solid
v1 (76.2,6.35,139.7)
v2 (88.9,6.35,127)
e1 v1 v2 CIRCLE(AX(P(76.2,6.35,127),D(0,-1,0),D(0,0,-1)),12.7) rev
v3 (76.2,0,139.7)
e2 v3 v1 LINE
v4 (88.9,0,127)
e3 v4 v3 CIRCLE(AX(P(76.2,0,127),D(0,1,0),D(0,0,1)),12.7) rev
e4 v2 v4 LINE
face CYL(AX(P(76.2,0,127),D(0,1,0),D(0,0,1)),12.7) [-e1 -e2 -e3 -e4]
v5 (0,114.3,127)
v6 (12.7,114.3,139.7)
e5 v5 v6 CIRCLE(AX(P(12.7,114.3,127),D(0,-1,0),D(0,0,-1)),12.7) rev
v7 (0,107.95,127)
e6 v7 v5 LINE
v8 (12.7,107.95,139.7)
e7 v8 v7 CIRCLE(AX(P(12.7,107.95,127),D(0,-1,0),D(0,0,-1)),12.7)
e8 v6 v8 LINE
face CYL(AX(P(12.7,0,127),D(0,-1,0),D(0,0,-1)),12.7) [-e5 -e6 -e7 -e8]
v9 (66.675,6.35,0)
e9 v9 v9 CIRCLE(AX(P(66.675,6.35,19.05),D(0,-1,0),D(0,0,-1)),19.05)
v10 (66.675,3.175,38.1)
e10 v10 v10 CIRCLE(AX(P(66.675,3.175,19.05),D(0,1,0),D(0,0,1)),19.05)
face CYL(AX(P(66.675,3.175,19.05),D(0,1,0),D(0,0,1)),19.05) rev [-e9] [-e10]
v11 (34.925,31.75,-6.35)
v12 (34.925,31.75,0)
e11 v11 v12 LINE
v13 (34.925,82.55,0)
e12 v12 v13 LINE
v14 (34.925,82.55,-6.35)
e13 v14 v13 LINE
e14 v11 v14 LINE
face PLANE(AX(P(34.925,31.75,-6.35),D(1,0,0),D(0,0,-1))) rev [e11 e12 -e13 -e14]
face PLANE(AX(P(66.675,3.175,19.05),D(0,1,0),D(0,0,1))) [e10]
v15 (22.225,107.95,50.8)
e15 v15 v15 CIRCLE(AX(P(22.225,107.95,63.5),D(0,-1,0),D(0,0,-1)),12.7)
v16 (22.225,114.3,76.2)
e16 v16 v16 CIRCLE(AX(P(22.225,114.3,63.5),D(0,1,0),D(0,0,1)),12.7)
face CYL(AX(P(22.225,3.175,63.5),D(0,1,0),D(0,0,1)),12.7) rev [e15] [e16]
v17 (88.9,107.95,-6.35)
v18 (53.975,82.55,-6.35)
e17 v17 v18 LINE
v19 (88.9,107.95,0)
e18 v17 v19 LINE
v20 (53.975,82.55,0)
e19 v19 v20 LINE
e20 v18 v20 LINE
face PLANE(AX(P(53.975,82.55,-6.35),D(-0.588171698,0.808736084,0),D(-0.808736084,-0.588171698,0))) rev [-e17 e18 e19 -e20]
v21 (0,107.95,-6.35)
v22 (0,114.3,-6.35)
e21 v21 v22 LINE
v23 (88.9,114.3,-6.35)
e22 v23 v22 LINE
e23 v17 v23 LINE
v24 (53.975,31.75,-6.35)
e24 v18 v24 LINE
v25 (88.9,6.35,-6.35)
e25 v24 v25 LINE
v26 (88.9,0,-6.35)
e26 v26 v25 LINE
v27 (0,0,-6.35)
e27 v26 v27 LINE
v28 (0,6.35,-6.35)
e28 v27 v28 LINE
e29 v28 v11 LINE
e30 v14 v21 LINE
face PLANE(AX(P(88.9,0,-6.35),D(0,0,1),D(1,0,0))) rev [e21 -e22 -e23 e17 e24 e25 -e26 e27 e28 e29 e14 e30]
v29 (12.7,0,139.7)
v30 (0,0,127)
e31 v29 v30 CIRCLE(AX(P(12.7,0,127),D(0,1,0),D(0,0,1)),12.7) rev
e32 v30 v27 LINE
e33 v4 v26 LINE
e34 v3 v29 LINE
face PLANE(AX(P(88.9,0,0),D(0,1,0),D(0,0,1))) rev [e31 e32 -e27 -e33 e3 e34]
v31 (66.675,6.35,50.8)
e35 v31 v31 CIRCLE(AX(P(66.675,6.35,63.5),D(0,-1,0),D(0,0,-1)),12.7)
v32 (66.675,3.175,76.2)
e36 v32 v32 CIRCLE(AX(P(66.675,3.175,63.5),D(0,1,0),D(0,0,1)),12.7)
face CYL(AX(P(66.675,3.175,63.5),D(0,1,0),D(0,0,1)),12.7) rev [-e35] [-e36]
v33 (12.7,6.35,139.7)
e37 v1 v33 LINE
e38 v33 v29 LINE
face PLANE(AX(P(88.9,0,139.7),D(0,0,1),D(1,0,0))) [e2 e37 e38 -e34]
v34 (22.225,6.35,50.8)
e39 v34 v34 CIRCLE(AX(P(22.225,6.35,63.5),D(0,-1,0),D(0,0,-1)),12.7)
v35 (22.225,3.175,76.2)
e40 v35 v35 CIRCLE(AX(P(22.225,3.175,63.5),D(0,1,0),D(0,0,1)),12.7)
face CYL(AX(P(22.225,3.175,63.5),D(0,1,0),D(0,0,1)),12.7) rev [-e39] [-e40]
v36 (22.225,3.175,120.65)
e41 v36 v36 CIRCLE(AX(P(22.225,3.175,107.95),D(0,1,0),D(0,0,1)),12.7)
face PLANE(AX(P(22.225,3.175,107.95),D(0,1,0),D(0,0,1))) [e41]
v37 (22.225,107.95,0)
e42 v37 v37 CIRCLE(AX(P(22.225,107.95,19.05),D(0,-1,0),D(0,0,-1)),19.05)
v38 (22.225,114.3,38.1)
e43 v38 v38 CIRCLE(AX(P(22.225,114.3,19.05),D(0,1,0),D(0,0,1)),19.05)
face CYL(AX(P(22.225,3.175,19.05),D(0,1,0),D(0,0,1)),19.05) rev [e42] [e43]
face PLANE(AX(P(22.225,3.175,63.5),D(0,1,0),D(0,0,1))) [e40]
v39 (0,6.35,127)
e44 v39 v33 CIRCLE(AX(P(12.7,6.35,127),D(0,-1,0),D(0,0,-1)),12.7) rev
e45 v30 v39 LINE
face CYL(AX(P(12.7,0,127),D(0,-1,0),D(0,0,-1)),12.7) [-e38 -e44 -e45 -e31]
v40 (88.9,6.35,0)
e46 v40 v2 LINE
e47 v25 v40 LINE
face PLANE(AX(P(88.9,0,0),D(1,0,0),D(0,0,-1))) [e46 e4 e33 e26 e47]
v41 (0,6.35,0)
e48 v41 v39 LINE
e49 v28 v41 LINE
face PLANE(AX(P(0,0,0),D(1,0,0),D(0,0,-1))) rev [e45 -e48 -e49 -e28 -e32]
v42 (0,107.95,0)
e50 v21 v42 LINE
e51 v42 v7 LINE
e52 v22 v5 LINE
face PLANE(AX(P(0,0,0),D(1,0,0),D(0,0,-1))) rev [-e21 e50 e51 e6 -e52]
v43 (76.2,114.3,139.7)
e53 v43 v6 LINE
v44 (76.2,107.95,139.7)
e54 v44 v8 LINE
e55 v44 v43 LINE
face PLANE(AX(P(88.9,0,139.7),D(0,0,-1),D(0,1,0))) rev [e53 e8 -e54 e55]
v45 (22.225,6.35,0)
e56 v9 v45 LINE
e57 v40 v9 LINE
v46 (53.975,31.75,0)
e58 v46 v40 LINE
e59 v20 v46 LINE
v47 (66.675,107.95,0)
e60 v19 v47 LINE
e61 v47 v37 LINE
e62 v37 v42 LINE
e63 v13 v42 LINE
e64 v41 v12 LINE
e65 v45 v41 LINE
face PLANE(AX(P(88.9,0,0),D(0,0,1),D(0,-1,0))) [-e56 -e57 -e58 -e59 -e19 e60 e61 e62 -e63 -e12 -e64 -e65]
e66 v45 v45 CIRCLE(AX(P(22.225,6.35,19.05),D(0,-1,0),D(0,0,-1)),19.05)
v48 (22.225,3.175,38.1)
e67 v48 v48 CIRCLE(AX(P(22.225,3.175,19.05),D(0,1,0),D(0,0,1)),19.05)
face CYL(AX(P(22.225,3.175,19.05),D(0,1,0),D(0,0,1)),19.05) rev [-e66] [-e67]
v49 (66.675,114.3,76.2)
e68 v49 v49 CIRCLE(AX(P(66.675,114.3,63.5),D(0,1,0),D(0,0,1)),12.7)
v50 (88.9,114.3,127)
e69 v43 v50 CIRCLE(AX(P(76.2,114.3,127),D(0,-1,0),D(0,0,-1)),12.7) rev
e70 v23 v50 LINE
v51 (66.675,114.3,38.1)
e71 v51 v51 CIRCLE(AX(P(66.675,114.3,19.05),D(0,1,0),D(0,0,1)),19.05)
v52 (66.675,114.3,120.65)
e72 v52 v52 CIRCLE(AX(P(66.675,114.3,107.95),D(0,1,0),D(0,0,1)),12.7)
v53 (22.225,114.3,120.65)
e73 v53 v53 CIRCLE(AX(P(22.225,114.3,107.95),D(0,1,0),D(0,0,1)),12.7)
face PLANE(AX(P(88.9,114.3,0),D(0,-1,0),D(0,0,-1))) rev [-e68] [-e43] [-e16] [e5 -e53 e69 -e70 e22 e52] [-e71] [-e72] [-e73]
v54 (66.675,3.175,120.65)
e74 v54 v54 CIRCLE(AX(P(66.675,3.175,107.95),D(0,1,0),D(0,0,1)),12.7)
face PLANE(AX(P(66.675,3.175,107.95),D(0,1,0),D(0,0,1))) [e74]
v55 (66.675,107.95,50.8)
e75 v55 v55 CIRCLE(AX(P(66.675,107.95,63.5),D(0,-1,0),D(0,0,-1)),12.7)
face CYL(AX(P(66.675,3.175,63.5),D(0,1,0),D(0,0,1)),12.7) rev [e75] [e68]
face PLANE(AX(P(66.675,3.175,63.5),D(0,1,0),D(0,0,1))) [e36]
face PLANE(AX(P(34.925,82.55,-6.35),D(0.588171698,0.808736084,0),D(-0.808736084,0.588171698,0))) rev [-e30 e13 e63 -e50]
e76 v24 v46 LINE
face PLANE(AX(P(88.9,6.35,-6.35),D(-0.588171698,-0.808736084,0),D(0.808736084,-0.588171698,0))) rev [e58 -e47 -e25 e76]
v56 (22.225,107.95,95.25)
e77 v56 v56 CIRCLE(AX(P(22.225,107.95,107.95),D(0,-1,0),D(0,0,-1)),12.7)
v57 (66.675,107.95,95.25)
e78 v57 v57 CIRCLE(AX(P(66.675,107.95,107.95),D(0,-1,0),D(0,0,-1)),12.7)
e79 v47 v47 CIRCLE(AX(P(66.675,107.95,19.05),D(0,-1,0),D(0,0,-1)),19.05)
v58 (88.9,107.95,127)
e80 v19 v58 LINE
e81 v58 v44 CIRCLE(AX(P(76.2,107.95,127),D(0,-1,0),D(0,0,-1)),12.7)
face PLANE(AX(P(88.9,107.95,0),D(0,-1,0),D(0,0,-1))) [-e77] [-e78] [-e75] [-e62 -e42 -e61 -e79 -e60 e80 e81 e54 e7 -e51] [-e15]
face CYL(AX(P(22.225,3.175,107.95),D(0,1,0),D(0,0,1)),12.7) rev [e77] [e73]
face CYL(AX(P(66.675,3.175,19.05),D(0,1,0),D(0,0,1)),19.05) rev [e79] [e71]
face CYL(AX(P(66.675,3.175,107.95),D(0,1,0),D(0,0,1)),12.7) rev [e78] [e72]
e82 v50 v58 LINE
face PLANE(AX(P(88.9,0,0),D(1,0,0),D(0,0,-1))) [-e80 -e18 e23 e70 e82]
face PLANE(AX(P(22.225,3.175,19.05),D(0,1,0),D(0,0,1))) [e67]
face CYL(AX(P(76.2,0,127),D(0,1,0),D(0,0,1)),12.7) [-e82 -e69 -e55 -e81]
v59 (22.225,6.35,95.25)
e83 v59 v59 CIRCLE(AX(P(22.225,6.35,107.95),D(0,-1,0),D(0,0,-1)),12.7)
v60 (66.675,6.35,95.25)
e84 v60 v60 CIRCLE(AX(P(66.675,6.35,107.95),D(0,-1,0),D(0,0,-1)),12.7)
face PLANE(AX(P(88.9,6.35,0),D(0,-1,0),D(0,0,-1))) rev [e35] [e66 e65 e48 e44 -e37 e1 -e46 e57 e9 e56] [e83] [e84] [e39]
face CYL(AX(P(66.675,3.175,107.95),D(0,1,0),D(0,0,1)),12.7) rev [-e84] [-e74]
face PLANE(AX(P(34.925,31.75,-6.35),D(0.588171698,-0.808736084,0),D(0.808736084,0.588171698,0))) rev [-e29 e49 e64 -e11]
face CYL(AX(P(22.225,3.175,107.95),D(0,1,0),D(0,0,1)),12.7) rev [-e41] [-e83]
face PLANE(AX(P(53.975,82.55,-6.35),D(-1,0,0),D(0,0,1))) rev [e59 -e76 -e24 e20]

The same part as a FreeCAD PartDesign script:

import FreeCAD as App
import Part
import Sketcher
from FreeCAD import Vector
Q = App.Units.Quantity


def edges_at(feature, points):
    """Names of the edges that pass closest to the given points."""
    edges = feature.Shape.Edges
    near = lambda p: min(range(len(edges)), key=lambda i: edges[i].distToShape(Part.Vertex(*p))[0])
    return sorted({f"Edge{near(p) + 1}" for p in points})

doc = App.newDocument("Part")
params = doc.addObject("Spreadsheet::Sheet", "Params")
for row, (alias, value) in enumerate([
    ("sketch1_width", "4 in"),
    ("sketch1_width2", "4.5 in"),
    ("sketch1_height", "5.5 in"),
    ("sketch1_height2", "5.75 in"),
    ("pad1_length", "3.5 in"),
    ("sketch2_diameter", "1 in"),
    ("sketch2_diameter2", "1.5 in"),
    ("pocket1_length", "4.375 in"),
    ("sketch3_height", "2 in"),
    ("sketch3_height2", "4 in"),
    ("fillet_radius", "0.5 in"),
], start=1):
    params.set(f"A{row}", alias)
    params.set(f"B{row}", "=" + value)
    params.setAlias(f"B{row}", alias)

body = doc.addObject("PartDesign::Body", "Body")

sketch1 = body.newObject("Sketcher::SketchObject", "Sketch")
sketch1.AttachmentSupport = (doc.getObject("YZ_Plane"), [""])
sketch1.MapMode = "FlatFace"
sketch1.addGeometry(Part.LineSegment(Vector(114.3, 139.7, 0), Vector(107.95, 139.7, 0)), False)
sketch1.addGeometry(Part.LineSegment(Vector(107.95, 139.7, 0), Vector(107.95, 0, 0)), False)
sketch1.addGeometry(Part.LineSegment(Vector(107.95, 0, 0), Vector(6.35, 0, 0)), False)
sketch1.addGeometry(Part.LineSegment(Vector(6.35, 0, 0), Vector(6.35, 139.7, 0)), False)
sketch1.addGeometry(Part.LineSegment(Vector(6.35, 139.7, 0), Vector(0, 139.7, 0)), False)
sketch1.addGeometry(Part.LineSegment(Vector(0, 139.7, 0), Vector(0, -6.35, 0)), False)
sketch1.addGeometry(Part.LineSegment(Vector(0, -6.35, 0), Vector(114.3, -6.35, 0)), False)
sketch1.addGeometry(Part.LineSegment(Vector(114.3, -6.35, 0), Vector(114.3, 139.7, 0)), False)
sketch1.addConstraint(Sketcher.Constraint("Coincident", 0, 2, 1, 1))
sketch1.addConstraint(Sketcher.Constraint("Coincident", 1, 2, 2, 1))
sketch1.addConstraint(Sketcher.Constraint("Coincident", 2, 2, 3, 1))
sketch1.addConstraint(Sketcher.Constraint("Coincident", 3, 2, 4, 1))
sketch1.addConstraint(Sketcher.Constraint("Coincident", 4, 2, 5, 1))
sketch1.addConstraint(Sketcher.Constraint("Coincident", 5, 2, 6, 1))
sketch1.addConstraint(Sketcher.Constraint("Coincident", 6, 2, 7, 1))
sketch1.addConstraint(Sketcher.Constraint("Coincident", 7, 2, 0, 1))
sketch1.addConstraint(Sketcher.Constraint("Horizontal", 0))
sketch1.addConstraint(Sketcher.Constraint("Vertical", 1))
sketch1.addConstraint(Sketcher.Constraint("Horizontal", 2))
sketch1.addConstraint(Sketcher.Constraint("Vertical", 3))
sketch1.addConstraint(Sketcher.Constraint("Horizontal", 4))
sketch1.addConstraint(Sketcher.Constraint("Vertical", 5))
sketch1.addConstraint(Sketcher.Constraint("Horizontal", 6))
sketch1.addConstraint(Sketcher.Constraint("Vertical", 7))
sketch1.addConstraint(Sketcher.Constraint("PointOnObject", 1, 2, -1))
sketch1.addConstraint(Sketcher.Constraint("PointOnObject", 4, 2, -2))
sketch1.addConstraint(Sketcher.Constraint("Horizontal", 0, 2, 3, 2))
sketch1.addConstraint(Sketcher.Constraint("Equal", 0, 4))
sketch1.addConstraint(Sketcher.Constraint("DistanceX", 2, 2, 2, 1, Q("4 in")))
sketch1.addConstraint(Sketcher.Constraint("DistanceX", 6, 1, 6, 2, Q("4.5 in")))
sketch1.addConstraint(Sketcher.Constraint("DistanceY", 1, 2, 1, 1, Q("5.5 in")))
sketch1.addConstraint(Sketcher.Constraint("DistanceY", 5, 2, 5, 1, Q("5.75 in")))
sketch1.setExpression("Constraints[20]", "Params.sketch1_width")
sketch1.setExpression("Constraints[21]", "Params.sketch1_width2")
sketch1.setExpression("Constraints[22]", "Params.sketch1_height")
sketch1.setExpression("Constraints[23]", "Params.sketch1_height2")
pad1 = body.newObject("PartDesign::Pad", "Pad")
pad1.Profile = sketch1
pad1.setExpression("Length", "Params.pad1_length")

sketch2 = body.newObject("Sketcher::SketchObject", "Sketch001")
sketch2.AttachmentSupport = (doc.getObject("XZ_Plane"), [""])
sketch2.MapMode = "FlatFace"
sketch2.AttachmentOffset = App.Placement(Vector(0, 0, -4.5 * 25.4), App.Rotation())
sketch2.addGeometry(Part.Circle(Vector(66.675, 19.05, 0), Vector(0, 0, 1), 19.05), False)
sketch2.addGeometry(Part.Circle(Vector(66.675, 63.5, 0), Vector(0, 0, 1), 12.7), False)
sketch2.addGeometry(Part.Circle(Vector(66.675, 107.95, 0), Vector(0, 0, 1), 12.7), False)
sketch2.addGeometry(Part.Circle(Vector(22.225, 107.95, 0), Vector(0, 0, 1), 12.7), False)
sketch2.addGeometry(Part.Circle(Vector(22.225, 63.5, 0), Vector(0, 0, 1), 12.7), False)
sketch2.addGeometry(Part.Circle(Vector(22.225, 19.05, 0), Vector(0, 0, 1), 19.05), False)
sketch2.addConstraint(Sketcher.Constraint("Equal", 1, 2))
sketch2.addConstraint(Sketcher.Constraint("Equal", 2, 3))
sketch2.addConstraint(Sketcher.Constraint("Equal", 3, 4))
sketch2.addConstraint(Sketcher.Constraint("Equal", 0, 5))
sketch2.addConstraint(Sketcher.Constraint("Horizontal", 2, 3, 3, 3))
sketch2.addConstraint(Sketcher.Constraint("Horizontal", 1, 3, 4, 3))
sketch2.addConstraint(Sketcher.Constraint("Horizontal", 0, 3, 5, 3))
sketch2.addConstraint(Sketcher.Constraint("Vertical", 0, 3, 1, 3))
sketch2.addConstraint(Sketcher.Constraint("Vertical", 1, 3, 2, 3))
sketch2.addConstraint(Sketcher.Constraint("Vertical", 3, 3, 4, 3))
sketch2.addConstraint(Sketcher.Constraint("Vertical", 4, 3, 5, 3))
sketch2.addConstraint(Sketcher.Constraint("Diameter", 1, Q("1 in")))
sketch2.addConstraint(Sketcher.Constraint("Diameter", 0, Q("1.5 in")))
sketch2.addConstraint(Sketcher.Constraint("DistanceY", -1, 1, 1, 3, Q("2.5 in")))
sketch2.addConstraint(Sketcher.Constraint("DistanceY", 0, 3, 2, 3, Q("3.5 in")))
sketch2.addConstraint(Sketcher.Constraint("DistanceY", -1, 1, 0, 3, Q("0.75 in")))
sketch2.addConstraint(Sketcher.Constraint("DistanceX", 3, 3, 2, 3, Q("1.75 in")))
sketch2.addConstraint(Sketcher.Constraint("DistanceX", -1, 1, 0, 3, Q("2.625 in")))
sketch2.setExpression("Constraints[11]", "Params.sketch2_diameter")
sketch2.setExpression("Constraints[12]", "Params.sketch2_diameter2")
pocket1 = body.newObject("PartDesign::Pocket", "Pocket")
pocket1.Profile = sketch2
pocket1.setExpression("Length", "Params.pocket1_length")
pocket1.Reversed = True

sketch3 = body.newObject("Sketcher::SketchObject", "Sketch002")
sketch3.AttachmentSupport = (doc.getObject("XY_Plane"), [""])
sketch3.MapMode = "FlatFace"
sketch3.addGeometry(Part.LineSegment(Vector(34.925, 31.75, 0), Vector(34.925, 82.55, 0)), False)
sketch3.addGeometry(Part.LineSegment(Vector(34.925, 82.55, 0), Vector(0, 107.95, 0)), False)
sketch3.addGeometry(Part.LineSegment(Vector(0, 107.95, 0), Vector(0, 6.35, 0)), False)
sketch3.addGeometry(Part.LineSegment(Vector(0, 6.35, 0), Vector(34.925, 31.75, 0)), False)
sketch3.addGeometry(Part.LineSegment(Vector(53.975, 82.55, 0), Vector(53.975, 31.75, 0)), False)
sketch3.addGeometry(Part.LineSegment(Vector(53.975, 31.75, 0), Vector(88.9, 6.35, 0)), False)
sketch3.addGeometry(Part.LineSegment(Vector(88.9, 6.35, 0), Vector(88.9, 107.95, 0)), False)
sketch3.addGeometry(Part.LineSegment(Vector(88.9, 107.95, 0), Vector(53.975, 82.55, 0)), False)
sketch3.addConstraint(Sketcher.Constraint("Coincident", 0, 2, 1, 1))
sketch3.addConstraint(Sketcher.Constraint("Coincident", 1, 2, 2, 1))
sketch3.addConstraint(Sketcher.Constraint("Coincident", 2, 2, 3, 1))
sketch3.addConstraint(Sketcher.Constraint("Coincident", 3, 2, 0, 1))
sketch3.addConstraint(Sketcher.Constraint("Coincident", 4, 2, 5, 1))
sketch3.addConstraint(Sketcher.Constraint("Coincident", 5, 2, 6, 1))
sketch3.addConstraint(Sketcher.Constraint("Coincident", 6, 2, 7, 1))
sketch3.addConstraint(Sketcher.Constraint("Coincident", 7, 2, 4, 1))
sketch3.addConstraint(Sketcher.Constraint("Vertical", 0))
sketch3.addConstraint(Sketcher.Constraint("Vertical", 2))
sketch3.addConstraint(Sketcher.Constraint("Vertical", 4))
sketch3.addConstraint(Sketcher.Constraint("Vertical", 6))
sketch3.addConstraint(Sketcher.Constraint("PointOnObject", 1, 2, -2))
sketch3.addConstraint(Sketcher.Constraint("Parallel", 1, 5))
sketch3.addConstraint(Sketcher.Constraint("Parallel", 3, 7))
sketch3.addConstraint(Sketcher.Constraint("Horizontal", 3, 2, 4, 2))
sketch3.addConstraint(Sketcher.Constraint("Horizontal", 2, 2, 5, 2))
sketch3.addConstraint(Sketcher.Constraint("Horizontal", 1, 2, 6, 2))
sketch3.addConstraint(Sketcher.Constraint("Horizontal", 0, 2, 7, 2))
sketch3.addConstraint(Sketcher.Constraint("DistanceY", 0, 1, 0, 2, Q("2 in")))
sketch3.addConstraint(Sketcher.Constraint("DistanceY", 2, 2, 2, 1, Q("4 in")))
sketch3.addConstraint(Sketcher.Constraint("DistanceX", -1, 1, 5, 2, Q("3.5 in")))
sketch3.addConstraint(Sketcher.Constraint("DistanceY", -1, 1, 0, 2, Q("3.25 in")))
sketch3.addConstraint(Sketcher.Constraint("DistanceX", 3, 2, 4, 2, Q("0.75 in")))
sketch3.setExpression("Constraints[19]", "Params.sketch3_height")
sketch3.setExpression("Constraints[20]", "Params.sketch3_height2")
pocket2 = body.newObject("PartDesign::Pocket", "Pocket001")
pocket2.Profile = sketch3
pocket2.Type = "ThroughAll"
pocket2.Midplane = True
doc.recompute()

fillet = body.newObject("PartDesign::Fillet", "Fillet")
fillet.Base = (pocket2, edges_at(pocket2, [
    (88.9, 111.125, 139.7),
    (0, 3.175, 139.7),
    (0, 111.125, 139.7),
    (88.9, 3.175, 139.7),
]))
fillet.setExpression("Radius", "Params.fillet_radius")

doc.recompute()
